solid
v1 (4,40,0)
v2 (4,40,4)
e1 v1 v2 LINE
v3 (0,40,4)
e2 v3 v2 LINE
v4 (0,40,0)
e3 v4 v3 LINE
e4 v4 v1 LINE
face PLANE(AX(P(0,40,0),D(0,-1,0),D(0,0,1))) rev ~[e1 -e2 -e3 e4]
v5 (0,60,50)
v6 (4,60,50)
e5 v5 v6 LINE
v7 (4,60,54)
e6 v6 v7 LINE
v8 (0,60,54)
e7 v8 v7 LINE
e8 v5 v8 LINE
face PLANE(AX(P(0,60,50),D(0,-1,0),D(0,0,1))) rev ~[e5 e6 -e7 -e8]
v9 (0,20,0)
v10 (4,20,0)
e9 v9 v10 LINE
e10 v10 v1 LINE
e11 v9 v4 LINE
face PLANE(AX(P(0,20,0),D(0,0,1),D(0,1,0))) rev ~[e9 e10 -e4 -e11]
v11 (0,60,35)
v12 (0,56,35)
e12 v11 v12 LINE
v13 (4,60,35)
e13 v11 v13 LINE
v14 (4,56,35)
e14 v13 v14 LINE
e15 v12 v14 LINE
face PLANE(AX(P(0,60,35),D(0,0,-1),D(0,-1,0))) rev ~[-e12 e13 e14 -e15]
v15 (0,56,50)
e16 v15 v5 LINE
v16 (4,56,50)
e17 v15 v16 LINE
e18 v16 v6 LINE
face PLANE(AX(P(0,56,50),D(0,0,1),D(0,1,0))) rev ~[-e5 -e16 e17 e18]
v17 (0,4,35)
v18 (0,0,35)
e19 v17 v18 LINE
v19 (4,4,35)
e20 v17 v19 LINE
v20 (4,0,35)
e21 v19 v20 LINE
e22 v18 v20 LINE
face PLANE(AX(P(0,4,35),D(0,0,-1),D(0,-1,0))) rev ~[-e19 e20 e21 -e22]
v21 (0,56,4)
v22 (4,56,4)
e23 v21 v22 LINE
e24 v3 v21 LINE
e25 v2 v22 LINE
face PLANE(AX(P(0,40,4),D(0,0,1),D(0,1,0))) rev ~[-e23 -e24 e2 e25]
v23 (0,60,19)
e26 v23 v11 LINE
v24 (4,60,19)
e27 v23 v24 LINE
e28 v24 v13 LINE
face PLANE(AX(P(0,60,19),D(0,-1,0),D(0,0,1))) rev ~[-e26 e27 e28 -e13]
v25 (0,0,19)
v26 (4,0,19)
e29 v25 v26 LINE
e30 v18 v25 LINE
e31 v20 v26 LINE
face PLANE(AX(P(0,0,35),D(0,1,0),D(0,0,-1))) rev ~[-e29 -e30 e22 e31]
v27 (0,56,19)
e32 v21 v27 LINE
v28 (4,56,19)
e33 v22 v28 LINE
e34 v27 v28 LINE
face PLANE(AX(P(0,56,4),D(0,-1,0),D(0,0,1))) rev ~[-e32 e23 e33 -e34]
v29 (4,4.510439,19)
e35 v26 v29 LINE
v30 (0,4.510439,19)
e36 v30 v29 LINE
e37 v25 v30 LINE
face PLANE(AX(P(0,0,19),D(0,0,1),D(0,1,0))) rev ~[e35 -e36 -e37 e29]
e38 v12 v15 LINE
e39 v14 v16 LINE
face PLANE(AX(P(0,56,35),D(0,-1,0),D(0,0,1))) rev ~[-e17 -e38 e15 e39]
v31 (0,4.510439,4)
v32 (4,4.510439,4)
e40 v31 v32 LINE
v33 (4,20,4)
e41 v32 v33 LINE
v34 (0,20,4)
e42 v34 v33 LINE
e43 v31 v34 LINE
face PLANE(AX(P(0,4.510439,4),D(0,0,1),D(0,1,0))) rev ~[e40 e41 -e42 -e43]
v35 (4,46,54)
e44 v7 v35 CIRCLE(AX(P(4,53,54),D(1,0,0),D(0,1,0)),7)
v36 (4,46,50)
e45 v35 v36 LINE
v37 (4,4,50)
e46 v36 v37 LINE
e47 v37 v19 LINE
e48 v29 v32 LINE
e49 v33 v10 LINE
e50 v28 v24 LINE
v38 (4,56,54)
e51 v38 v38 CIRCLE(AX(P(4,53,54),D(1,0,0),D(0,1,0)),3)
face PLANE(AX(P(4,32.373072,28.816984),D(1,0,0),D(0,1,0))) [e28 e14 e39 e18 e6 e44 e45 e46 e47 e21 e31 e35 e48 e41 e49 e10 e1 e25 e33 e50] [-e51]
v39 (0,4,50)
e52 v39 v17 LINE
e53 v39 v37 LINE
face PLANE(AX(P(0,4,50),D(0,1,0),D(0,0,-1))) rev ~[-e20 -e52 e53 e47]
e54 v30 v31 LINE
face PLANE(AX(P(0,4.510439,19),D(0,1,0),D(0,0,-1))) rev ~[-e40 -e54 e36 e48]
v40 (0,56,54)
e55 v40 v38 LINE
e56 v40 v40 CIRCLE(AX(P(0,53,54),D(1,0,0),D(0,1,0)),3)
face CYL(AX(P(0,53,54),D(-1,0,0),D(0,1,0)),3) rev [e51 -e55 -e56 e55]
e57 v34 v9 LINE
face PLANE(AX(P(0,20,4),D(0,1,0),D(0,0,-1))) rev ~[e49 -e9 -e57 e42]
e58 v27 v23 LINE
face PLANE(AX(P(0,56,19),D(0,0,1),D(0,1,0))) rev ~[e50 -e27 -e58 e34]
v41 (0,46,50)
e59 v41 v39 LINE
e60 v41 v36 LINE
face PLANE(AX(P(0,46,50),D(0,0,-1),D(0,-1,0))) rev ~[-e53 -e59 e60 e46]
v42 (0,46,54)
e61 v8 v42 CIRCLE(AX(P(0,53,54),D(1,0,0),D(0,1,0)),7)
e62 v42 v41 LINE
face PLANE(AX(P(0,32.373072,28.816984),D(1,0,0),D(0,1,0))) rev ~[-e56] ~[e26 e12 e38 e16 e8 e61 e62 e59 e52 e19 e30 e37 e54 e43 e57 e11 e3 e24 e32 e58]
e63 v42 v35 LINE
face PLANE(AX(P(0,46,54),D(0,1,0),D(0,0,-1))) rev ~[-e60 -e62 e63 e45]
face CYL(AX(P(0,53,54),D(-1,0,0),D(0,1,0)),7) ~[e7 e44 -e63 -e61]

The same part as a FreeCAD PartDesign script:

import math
import FreeCAD as App
import Part
import Sketcher
Q = App.Units.Quantity

doc = App.newDocument("Part")
params = doc.addObject("Spreadsheet::Sheet", "Params")
for row, (alias, value) in enumerate([
    ("sketch1_diameter", "6 mm"),
    ("sketch1_radius", "7 mm"),
    ("sketch1_width", "20 mm"),
    ("sketch1_width2", "16 mm"),
    ("sketch1_width3", "4 mm"),
    ("pad1_length", "4 mm"),
], start=1):
    params.set(f"A{row}", alias)
    params.set(f"B{row}", "=" + value)
    params.setAlias(f"B{row}", alias)

body = doc.addObject("PartDesign::Body", "Body")

# Sketch on YZ plane
sketch1 = body.newObject("Sketcher::SketchObject", "Sketch")
sketch1.AttachmentSupport = (doc.getObject("YZ_Plane"), [""])
sketch1.MapMode = "FlatFace"
sketch1.addGeometry([
    Part.LineSegment(App.Vector(20, 4, 0), App.Vector(20, 0, 0)),  # 0
    Part.LineSegment(App.Vector(20, 0, 0), App.Vector(40, 0, 0)),  # 1
    Part.LineSegment(App.Vector(40, 0, 0), App.Vector(40, 4, 0)),  # 2
    Part.LineSegment(App.Vector(40, 4, 0), App.Vector(56, 4, 0)),  # 3
    Part.LineSegment(App.Vector(56, 4, 0), App.Vector(56, 19, 0)),  # 4
    Part.LineSegment(App.Vector(56, 19, 0), App.Vector(60, 19, 0)),  # 5
    Part.LineSegment(App.Vector(60, 19, 0), App.Vector(60, 35, 0)),  # 6
    Part.LineSegment(App.Vector(60, 35, 0), App.Vector(56, 35, 0)),  # 7
    Part.LineSegment(App.Vector(56, 35, 0), App.Vector(56, 50, 0)),  # 8
    Part.LineSegment(App.Vector(56, 50, 0), App.Vector(60, 50, 0)),  # 9
    Part.LineSegment(App.Vector(60, 50, 0), App.Vector(60, 54, 0)),  # 10
    Part.ArcOfCircle(Part.Circle(App.Vector(53, 54, 0), App.Vector(0, 0, 1), 7), math.radians(0), math.radians(180)),  # 11
    Part.LineSegment(App.Vector(46, 54, 0), App.Vector(46, 50, 0)),  # 12
    Part.LineSegment(App.Vector(46, 50, 0), App.Vector(4, 50, 0)),  # 13
    Part.LineSegment(App.Vector(4, 50, 0), App.Vector(4, 35, 0)),  # 14
    Part.LineSegment(App.Vector(4, 35, 0), App.Vector(0, 35, 0)),  # 15
    Part.LineSegment(App.Vector(0, 35, 0), App.Vector(0, 19, 0)),  # 16
    Part.LineSegment(App.Vector(0, 19, 0), App.Vector(4.5, 19, 0)),  # 17
    Part.LineSegment(App.Vector(4.5, 19, 0), App.Vector(4.5, 4, 0)),  # 18
    Part.LineSegment(App.Vector(4.5, 4, 0), App.Vector(20, 4, 0)),  # 19
    Part.Circle(App.Vector(53, 54, 0), App.Vector(0, 0, 1), 3),  # 20
], False)
sketch1.addConstraint([
    Sketcher.Constraint("Coincident", 0, 2, 1, 1),
    Sketcher.Constraint("Coincident", 1, 2, 2, 1),
    Sketcher.Constraint("Coincident", 2, 2, 3, 1),
    Sketcher.Constraint("Coincident", 3, 2, 4, 1),
    Sketcher.Constraint("Coincident", 4, 2, 5, 1),
    Sketcher.Constraint("Coincident", 5, 2, 6, 1),
    Sketcher.Constraint("Coincident", 6, 2, 7, 1),
    Sketcher.Constraint("Coincident", 7, 2, 8, 1),
    Sketcher.Constraint("Coincident", 8, 2, 9, 1),
    Sketcher.Constraint("Coincident", 9, 2, 10, 1),
    Sketcher.Constraint("Tangent", 10, 2, 11, 1),
    Sketcher.Constraint("Tangent", 11, 2, 12, 1),
    Sketcher.Constraint("Coincident", 12, 2, 13, 1),
    Sketcher.Constraint("Coincident", 13, 2, 14, 1),
    Sketcher.Constraint("Coincident", 14, 2, 15, 1),
    Sketcher.Constraint("Coincident", 15, 2, 16, 1),
    Sketcher.Constraint("Coincident", 16, 2, 17, 1),
    Sketcher.Constraint("Coincident", 17, 2, 18, 1),
    Sketcher.Constraint("Coincident", 18, 2, 19, 1),
    Sketcher.Constraint("Coincident", 19, 2, 0, 1),
    Sketcher.Constraint("Vertical", 0),
    Sketcher.Constraint("Horizontal", 1),
    Sketcher.Constraint("Vertical", 2),
    Sketcher.Constraint("Horizontal", 3),
    Sketcher.Constraint("Vertical", 4),
    Sketcher.Constraint("Horizontal", 5),
    Sketcher.Constraint("Vertical", 6),
    Sketcher.Constraint("Horizontal", 7),
    Sketcher.Constraint("Vertical", 8),
    Sketcher.Constraint("Horizontal", 9),
    Sketcher.Constraint("Vertical", 10),
    Sketcher.Constraint("Vertical", 12),
    Sketcher.Constraint("Horizontal", 13),
    Sketcher.Constraint("Vertical", 14),
    Sketcher.Constraint("Horizontal", 15),
    Sketcher.Constraint("Vertical", 16),
    Sketcher.Constraint("Horizontal", 17),
    Sketcher.Constraint("Vertical", 18),
    Sketcher.Constraint("Horizontal", 19),
    Sketcher.Constraint("Coincident", 20, 3, 11, 3),
    Sketcher.Constraint("PointOnObject", 0, 2, -1),
    Sketcher.Constraint("PointOnObject", 15, 2, -2),
    Sketcher.Constraint("Horizontal", 9, 2, 12, 2),
    Sketcher.Constraint("Horizontal", 7, 2, 14, 2),
    Sketcher.Constraint("Horizontal", 5, 2, 16, 2),
    Sketcher.Constraint("Horizontal", 3, 2, 18, 2),
    Sketcher.Constraint("Vertical", 4, 2, 7, 2),
    Sketcher.Constraint("Vertical", 6, 2, 9, 2),
    Sketcher.Constraint("Equal", 9, 15),
    Sketcher.Constraint("Equal", 15, 0),
    Sketcher.Constraint("Equal", 3, 6),
    Sketcher.Constraint("Equal", 4, 8),
    Sketcher.Constraint("Equal", 2, 10),
    Sketcher.Constraint("Diameter", 20, Q("6 mm")),
    Sketcher.Constraint("Radius", 11, Q("7 mm")),
    Sketcher.Constraint("DistanceX", 1, 1, 1, 2, Q("20 mm")),
    Sketcher.Constraint("DistanceX", 3, 1, 3, 2, Q("16 mm")),
    Sketcher.Constraint("DistanceX", 5, 1, 5, 2, Q("4 mm")),
    Sketcher.Constraint("DistanceX", 13, 2, 13, 1, Q("42 mm")),
    Sketcher.Constraint("DistanceY", 4, 1, 4, 2, Q("15 mm")),
    Sketcher.Constraint("DistanceX", 17, 1, 17, 2, Q("4.510439 mm")),
])
sketch1.setExpression("Constraints[53]", "Params.sketch1_diameter")
sketch1.setExpression("Constraints[54]", "Params.sketch1_radius")
sketch1.setExpression("Constraints[55]", "Params.sketch1_width")
sketch1.setExpression("Constraints[56]", "Params.sketch1_width2")
sketch1.setExpression("Constraints[57]", "Params.sketch1_width3")
pad1 = body.newObject("PartDesign::Pad", "Pad")
pad1.Profile = sketch1
pad1.setExpression("Length", "Params.pad1_length")

doc.recompute()
